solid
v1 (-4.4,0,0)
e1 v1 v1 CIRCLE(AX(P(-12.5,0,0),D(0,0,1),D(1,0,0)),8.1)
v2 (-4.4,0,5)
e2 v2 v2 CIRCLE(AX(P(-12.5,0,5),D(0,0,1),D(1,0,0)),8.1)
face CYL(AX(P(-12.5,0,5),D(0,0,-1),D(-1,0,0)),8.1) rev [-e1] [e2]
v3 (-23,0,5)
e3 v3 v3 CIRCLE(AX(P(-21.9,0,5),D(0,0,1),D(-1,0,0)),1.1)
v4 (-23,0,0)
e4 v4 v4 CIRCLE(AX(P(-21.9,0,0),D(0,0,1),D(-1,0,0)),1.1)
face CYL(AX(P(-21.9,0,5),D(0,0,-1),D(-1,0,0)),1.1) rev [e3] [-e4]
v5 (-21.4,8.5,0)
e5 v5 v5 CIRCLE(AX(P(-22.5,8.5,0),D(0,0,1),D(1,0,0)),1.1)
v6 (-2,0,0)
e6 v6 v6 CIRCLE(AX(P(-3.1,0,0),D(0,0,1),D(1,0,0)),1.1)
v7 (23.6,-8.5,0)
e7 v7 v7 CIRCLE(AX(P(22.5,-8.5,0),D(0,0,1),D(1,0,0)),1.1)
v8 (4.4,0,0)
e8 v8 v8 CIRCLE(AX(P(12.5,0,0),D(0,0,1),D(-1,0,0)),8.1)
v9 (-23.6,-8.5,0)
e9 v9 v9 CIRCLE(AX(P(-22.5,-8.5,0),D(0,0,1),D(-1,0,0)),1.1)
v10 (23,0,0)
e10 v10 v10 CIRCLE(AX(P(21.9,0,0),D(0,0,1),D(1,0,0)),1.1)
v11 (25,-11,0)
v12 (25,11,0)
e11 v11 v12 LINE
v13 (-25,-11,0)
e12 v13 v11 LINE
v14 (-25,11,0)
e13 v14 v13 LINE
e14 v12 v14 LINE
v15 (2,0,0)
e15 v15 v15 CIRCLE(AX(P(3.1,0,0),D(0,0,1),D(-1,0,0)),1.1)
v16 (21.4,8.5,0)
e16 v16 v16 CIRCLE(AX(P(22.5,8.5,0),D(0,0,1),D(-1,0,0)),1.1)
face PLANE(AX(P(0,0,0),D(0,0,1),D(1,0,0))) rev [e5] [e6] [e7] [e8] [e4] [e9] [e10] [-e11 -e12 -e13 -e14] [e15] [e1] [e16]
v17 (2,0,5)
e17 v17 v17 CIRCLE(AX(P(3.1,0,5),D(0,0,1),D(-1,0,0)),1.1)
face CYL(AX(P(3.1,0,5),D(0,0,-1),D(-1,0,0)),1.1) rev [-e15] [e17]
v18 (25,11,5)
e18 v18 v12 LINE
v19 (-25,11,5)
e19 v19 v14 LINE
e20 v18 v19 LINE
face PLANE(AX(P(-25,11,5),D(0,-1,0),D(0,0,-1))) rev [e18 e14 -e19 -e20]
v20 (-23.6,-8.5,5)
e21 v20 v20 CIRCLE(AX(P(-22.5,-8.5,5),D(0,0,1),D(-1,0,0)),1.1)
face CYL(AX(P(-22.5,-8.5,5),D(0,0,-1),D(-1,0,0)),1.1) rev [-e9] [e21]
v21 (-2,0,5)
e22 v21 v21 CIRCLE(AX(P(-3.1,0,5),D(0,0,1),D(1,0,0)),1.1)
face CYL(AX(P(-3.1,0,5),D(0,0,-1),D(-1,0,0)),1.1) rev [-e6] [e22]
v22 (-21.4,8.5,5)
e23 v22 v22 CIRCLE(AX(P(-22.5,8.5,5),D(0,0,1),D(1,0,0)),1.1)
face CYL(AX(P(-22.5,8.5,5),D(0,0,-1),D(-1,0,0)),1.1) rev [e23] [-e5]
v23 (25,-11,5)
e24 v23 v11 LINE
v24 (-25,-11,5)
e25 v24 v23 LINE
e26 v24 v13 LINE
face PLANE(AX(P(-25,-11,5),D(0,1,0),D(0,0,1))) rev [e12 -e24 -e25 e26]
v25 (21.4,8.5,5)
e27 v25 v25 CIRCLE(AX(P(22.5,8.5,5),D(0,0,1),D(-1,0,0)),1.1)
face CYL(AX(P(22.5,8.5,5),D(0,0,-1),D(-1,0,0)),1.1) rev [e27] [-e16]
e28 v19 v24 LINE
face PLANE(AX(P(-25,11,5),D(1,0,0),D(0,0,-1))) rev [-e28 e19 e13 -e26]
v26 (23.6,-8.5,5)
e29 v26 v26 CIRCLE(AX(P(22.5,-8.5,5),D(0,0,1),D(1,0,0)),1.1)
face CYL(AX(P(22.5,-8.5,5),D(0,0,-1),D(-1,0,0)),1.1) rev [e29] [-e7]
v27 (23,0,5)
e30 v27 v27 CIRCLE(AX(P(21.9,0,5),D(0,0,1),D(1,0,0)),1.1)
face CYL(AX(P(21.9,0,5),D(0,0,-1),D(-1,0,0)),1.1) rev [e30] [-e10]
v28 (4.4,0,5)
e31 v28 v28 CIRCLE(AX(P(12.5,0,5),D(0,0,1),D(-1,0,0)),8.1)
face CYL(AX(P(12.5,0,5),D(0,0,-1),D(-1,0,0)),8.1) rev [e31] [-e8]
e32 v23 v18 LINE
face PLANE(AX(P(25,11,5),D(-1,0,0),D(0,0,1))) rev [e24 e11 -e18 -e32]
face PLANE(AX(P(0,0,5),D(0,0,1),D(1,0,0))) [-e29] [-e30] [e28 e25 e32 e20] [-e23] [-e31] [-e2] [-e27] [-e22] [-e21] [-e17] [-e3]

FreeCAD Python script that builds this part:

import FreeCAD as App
import Part
import Sketcher

V = App.Vector
Q = App.Units.Quantity

doc = App.newDocument("Part")
body = doc.addObject("PartDesign::Body", "Body")

# Sketch on XY plane
sketch1 = body.newObject("Sketcher::SketchObject", "Sketch")
sketch1.AttachmentSupport = (doc.getObject("XY_Plane"), [""])
sketch1.MapMode = "FlatFace"
sketch1.addGeometry([
    Part.LineSegment(V(-25, 11, 0), V(-25, -11, 0)),  # 0
    Part.LineSegment(V(-25, -11, 0), V(25, -11, 0)),  # 1
    Part.LineSegment(V(25, -11, 0), V(25, 11, 0)),  # 2
    Part.LineSegment(V(25, 11, 0), V(-25, 11, 0)),  # 3
    Part.Circle(V(-22.5, -8.5, 0), V(0, 0, 1), 1.1),  # 4
    Part.Circle(V(22.5, -8.5, 0), V(0, 0, 1), 1.1),  # 5
    Part.Circle(V(-21.9, 0, 0), V(0, 0, 1), 1.1),  # 6
    Part.Circle(V(-12.5, 0, 0), V(0, 0, 1), 8.1),  # 7
    Part.Circle(V(-3.1, 0, 0), V(0, 0, 1), 1.1),  # 8
    Part.Circle(V(-22.5, 8.5, 0), V(0, 0, 1), 1.1),  # 9
    Part.Circle(V(3.1, 0, 0), V(0, 0, 1), 1.1),  # 10
    Part.Circle(V(12.5, 0, 0), V(0, 0, 1), 8.1),  # 11
    Part.Circle(V(21.9, 0, 0), V(0, 0, 1), 1.1),  # 12
    Part.Circle(V(22.5, 8.5, 0), V(0, 0, 1), 1.1),  # 13
], False)
sketch1.addConstraint([
    Sketcher.Constraint("Coincident", 0, 2, 1, 1),
    Sketcher.Constraint("Coincident", 1, 2, 2, 1),
    Sketcher.Constraint("Coincident", 2, 2, 3, 1),
    Sketcher.Constraint("Coincident", 3, 2, 0, 1),
    Sketcher.Constraint("Vertical", 0),
    Sketcher.Constraint("Horizontal", 1),
    Sketcher.Constraint("Vertical", 2),
    Sketcher.Constraint("Horizontal", 3),
    Sketcher.Constraint("Equal", 4, 5),
    Sketcher.Constraint("Equal", 5, 6),
    Sketcher.Constraint("Equal", 6, 8),
    Sketcher.Constraint("Equal", 8, 9),
    Sketcher.Constraint("Equal", 9, 10),
    Sketcher.Constraint("Equal", 7, 11),
    Sketcher.Constraint("Equal", 10, 12),
    Sketcher.Constraint("Equal", 12, 13),
    Sketcher.Constraint("Symmetric", 5, 3, 9, 3, -1, 1),
    Sketcher.Constraint("Symmetric", 8, 3, 10, 3, -1, 1),
    Sketcher.Constraint("Symmetric", 7, 3, 11, 3, -1, 1),
    Sketcher.Constraint("Symmetric", 6, 3, 12, 3, -1, 1),
    Sketcher.Constraint("Symmetric", 4, 3, 13, 3, -1, 1),
    Sketcher.Constraint("Symmetric", 0, 2, 2, 2, -1, 1),
    Sketcher.Constraint("Symmetric", 4, 3, 5, 3, -2),
    Sketcher.Constraint("PointOnObject", 6, 3, -1),
    Sketcher.Constraint("PointOnObject", 7, 3, -1),
    Sketcher.Constraint("PointOnObject", 8, 3, -1),
    Sketcher.Constraint("Diameter", 4, Q("2.2 mm")),
    Sketcher.Constraint("Diameter", 7, Q("16.2 mm")),
    Sketcher.Constraint("DistanceX", 1, 1, 1, 2, Q("50 mm")),
    Sketcher.Constraint("DistanceY", 0, 2, 0, 1, Q("22 mm")),
    Sketcher.Constraint("DistanceX", 4, 3, 5, 3, Q("45 mm")),
    Sketcher.Constraint("DistanceX", 4, 3, 7, 3, Q("10 mm")),
    Sketcher.Constraint("DistanceY", 4, 3, 9, 3, Q("17 mm")),
    Sketcher.Constraint("DistanceX", 6, 3, 10, 3, Q("25 mm")),
    Sketcher.Constraint("DistanceX", 6, 3, -1, 1, Q("21.9 mm")),
])
pad1 = body.newObject("PartDesign::Pad", "Pad")
pad1.Profile = sketch1
pad1.Length = 5

doc.recompute()
